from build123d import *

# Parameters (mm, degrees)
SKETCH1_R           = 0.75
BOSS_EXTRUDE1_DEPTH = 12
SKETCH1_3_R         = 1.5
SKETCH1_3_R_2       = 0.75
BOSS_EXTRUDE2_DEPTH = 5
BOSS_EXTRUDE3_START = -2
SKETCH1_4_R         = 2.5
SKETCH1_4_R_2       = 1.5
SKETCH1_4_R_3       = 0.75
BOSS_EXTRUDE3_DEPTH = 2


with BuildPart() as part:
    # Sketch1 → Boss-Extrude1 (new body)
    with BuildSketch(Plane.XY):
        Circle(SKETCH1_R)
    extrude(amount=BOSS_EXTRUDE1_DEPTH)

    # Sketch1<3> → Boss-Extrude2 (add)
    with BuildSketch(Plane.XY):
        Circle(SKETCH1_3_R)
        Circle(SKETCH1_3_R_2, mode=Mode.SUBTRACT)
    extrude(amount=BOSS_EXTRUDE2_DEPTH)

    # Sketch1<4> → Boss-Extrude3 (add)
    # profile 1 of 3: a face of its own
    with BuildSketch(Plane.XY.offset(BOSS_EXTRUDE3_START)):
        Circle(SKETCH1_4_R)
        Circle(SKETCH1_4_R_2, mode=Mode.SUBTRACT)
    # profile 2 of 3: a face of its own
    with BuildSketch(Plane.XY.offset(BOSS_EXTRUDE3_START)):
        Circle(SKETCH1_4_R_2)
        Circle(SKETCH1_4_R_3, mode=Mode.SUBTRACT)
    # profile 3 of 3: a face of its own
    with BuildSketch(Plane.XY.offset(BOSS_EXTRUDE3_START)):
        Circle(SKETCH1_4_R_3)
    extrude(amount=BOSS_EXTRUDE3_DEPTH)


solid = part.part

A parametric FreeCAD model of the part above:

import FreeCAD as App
import Part
import Sketcher

doc = App.newDocument("Part")
body = doc.addObject("PartDesign::Body", "Body")

# Sketch on XY plane
sketch1 = body.newObject("Sketcher::SketchObject", "Sketch")
sketch1.AttachmentSupport = (doc.getObject("XY_Plane"), [""])
sketch1.MapMode = "FlatFace"
sketch1.addGeometry(Part.Circle(App.Vector(0, 0, 0), App.Vector(0, 0, 1), 0.8), False)
sketch1.addConstraint([
    Sketcher.Constraint("Coincident", 0, 3, -1, 1),
    Sketcher.Constraint("Diameter", 0, 1.5),
])
pad1 = body.newObject("PartDesign::Pad", "Pad")
pad1.Profile = sketch1
pad1.Length = 12

# Sketch on XY plane
sketch2 = body.newObject("Sketcher::SketchObject", "Sketch001")
sketch2.AttachmentSupport = (doc.getObject("XY_Plane"), [""])
sketch2.MapMode = "FlatFace"
sketch2.addGeometry([
    Part.Circle(App.Vector(0, 0, 0), App.Vector(0, 0, 1), 1.5),
    Part.Circle(App.Vector(0, 0, 0), App.Vector(0, 0, 1), 0.8),
], False)
sketch2.addConstraint([
    Sketcher.Constraint("Coincident", 0, 3, -1, 1),
    Sketcher.Constraint("Coincident", 1, 3, -1, 1),
    Sketcher.Constraint("Diameter", 0, 3.0),
    Sketcher.Constraint("Diameter", 1, 1.5),
])
pad2 = body.newObject("PartDesign::Pad", "Pad001")
pad2.Profile = sketch2
pad2.Length = 5

# Sketch on XY plane
sketch3 = body.newObject("Sketcher::SketchObject", "Sketch002")
sketch3.AttachmentSupport = (doc.getObject("XY_Plane"), [""])
sketch3.MapMode = "FlatFace"
sketch3.AttachmentOffset = App.Placement(App.Vector(0, 0, -2), App.Rotation())
sketch3.addGeometry(Part.Circle(App.Vector(0, 0, 0), App.Vector(0, 0, 1), 2.5), False)
sketch3.addConstraint([
    Sketcher.Constraint("Coincident", 0, 3, -1, 1),
    Sketcher.Constraint("Diameter", 0, 5.0),
])
pad3 = body.newObject("PartDesign::Pad", "Pad002")
pad3.Profile = sketch3
pad3.Length = 2

doc.recompute()
